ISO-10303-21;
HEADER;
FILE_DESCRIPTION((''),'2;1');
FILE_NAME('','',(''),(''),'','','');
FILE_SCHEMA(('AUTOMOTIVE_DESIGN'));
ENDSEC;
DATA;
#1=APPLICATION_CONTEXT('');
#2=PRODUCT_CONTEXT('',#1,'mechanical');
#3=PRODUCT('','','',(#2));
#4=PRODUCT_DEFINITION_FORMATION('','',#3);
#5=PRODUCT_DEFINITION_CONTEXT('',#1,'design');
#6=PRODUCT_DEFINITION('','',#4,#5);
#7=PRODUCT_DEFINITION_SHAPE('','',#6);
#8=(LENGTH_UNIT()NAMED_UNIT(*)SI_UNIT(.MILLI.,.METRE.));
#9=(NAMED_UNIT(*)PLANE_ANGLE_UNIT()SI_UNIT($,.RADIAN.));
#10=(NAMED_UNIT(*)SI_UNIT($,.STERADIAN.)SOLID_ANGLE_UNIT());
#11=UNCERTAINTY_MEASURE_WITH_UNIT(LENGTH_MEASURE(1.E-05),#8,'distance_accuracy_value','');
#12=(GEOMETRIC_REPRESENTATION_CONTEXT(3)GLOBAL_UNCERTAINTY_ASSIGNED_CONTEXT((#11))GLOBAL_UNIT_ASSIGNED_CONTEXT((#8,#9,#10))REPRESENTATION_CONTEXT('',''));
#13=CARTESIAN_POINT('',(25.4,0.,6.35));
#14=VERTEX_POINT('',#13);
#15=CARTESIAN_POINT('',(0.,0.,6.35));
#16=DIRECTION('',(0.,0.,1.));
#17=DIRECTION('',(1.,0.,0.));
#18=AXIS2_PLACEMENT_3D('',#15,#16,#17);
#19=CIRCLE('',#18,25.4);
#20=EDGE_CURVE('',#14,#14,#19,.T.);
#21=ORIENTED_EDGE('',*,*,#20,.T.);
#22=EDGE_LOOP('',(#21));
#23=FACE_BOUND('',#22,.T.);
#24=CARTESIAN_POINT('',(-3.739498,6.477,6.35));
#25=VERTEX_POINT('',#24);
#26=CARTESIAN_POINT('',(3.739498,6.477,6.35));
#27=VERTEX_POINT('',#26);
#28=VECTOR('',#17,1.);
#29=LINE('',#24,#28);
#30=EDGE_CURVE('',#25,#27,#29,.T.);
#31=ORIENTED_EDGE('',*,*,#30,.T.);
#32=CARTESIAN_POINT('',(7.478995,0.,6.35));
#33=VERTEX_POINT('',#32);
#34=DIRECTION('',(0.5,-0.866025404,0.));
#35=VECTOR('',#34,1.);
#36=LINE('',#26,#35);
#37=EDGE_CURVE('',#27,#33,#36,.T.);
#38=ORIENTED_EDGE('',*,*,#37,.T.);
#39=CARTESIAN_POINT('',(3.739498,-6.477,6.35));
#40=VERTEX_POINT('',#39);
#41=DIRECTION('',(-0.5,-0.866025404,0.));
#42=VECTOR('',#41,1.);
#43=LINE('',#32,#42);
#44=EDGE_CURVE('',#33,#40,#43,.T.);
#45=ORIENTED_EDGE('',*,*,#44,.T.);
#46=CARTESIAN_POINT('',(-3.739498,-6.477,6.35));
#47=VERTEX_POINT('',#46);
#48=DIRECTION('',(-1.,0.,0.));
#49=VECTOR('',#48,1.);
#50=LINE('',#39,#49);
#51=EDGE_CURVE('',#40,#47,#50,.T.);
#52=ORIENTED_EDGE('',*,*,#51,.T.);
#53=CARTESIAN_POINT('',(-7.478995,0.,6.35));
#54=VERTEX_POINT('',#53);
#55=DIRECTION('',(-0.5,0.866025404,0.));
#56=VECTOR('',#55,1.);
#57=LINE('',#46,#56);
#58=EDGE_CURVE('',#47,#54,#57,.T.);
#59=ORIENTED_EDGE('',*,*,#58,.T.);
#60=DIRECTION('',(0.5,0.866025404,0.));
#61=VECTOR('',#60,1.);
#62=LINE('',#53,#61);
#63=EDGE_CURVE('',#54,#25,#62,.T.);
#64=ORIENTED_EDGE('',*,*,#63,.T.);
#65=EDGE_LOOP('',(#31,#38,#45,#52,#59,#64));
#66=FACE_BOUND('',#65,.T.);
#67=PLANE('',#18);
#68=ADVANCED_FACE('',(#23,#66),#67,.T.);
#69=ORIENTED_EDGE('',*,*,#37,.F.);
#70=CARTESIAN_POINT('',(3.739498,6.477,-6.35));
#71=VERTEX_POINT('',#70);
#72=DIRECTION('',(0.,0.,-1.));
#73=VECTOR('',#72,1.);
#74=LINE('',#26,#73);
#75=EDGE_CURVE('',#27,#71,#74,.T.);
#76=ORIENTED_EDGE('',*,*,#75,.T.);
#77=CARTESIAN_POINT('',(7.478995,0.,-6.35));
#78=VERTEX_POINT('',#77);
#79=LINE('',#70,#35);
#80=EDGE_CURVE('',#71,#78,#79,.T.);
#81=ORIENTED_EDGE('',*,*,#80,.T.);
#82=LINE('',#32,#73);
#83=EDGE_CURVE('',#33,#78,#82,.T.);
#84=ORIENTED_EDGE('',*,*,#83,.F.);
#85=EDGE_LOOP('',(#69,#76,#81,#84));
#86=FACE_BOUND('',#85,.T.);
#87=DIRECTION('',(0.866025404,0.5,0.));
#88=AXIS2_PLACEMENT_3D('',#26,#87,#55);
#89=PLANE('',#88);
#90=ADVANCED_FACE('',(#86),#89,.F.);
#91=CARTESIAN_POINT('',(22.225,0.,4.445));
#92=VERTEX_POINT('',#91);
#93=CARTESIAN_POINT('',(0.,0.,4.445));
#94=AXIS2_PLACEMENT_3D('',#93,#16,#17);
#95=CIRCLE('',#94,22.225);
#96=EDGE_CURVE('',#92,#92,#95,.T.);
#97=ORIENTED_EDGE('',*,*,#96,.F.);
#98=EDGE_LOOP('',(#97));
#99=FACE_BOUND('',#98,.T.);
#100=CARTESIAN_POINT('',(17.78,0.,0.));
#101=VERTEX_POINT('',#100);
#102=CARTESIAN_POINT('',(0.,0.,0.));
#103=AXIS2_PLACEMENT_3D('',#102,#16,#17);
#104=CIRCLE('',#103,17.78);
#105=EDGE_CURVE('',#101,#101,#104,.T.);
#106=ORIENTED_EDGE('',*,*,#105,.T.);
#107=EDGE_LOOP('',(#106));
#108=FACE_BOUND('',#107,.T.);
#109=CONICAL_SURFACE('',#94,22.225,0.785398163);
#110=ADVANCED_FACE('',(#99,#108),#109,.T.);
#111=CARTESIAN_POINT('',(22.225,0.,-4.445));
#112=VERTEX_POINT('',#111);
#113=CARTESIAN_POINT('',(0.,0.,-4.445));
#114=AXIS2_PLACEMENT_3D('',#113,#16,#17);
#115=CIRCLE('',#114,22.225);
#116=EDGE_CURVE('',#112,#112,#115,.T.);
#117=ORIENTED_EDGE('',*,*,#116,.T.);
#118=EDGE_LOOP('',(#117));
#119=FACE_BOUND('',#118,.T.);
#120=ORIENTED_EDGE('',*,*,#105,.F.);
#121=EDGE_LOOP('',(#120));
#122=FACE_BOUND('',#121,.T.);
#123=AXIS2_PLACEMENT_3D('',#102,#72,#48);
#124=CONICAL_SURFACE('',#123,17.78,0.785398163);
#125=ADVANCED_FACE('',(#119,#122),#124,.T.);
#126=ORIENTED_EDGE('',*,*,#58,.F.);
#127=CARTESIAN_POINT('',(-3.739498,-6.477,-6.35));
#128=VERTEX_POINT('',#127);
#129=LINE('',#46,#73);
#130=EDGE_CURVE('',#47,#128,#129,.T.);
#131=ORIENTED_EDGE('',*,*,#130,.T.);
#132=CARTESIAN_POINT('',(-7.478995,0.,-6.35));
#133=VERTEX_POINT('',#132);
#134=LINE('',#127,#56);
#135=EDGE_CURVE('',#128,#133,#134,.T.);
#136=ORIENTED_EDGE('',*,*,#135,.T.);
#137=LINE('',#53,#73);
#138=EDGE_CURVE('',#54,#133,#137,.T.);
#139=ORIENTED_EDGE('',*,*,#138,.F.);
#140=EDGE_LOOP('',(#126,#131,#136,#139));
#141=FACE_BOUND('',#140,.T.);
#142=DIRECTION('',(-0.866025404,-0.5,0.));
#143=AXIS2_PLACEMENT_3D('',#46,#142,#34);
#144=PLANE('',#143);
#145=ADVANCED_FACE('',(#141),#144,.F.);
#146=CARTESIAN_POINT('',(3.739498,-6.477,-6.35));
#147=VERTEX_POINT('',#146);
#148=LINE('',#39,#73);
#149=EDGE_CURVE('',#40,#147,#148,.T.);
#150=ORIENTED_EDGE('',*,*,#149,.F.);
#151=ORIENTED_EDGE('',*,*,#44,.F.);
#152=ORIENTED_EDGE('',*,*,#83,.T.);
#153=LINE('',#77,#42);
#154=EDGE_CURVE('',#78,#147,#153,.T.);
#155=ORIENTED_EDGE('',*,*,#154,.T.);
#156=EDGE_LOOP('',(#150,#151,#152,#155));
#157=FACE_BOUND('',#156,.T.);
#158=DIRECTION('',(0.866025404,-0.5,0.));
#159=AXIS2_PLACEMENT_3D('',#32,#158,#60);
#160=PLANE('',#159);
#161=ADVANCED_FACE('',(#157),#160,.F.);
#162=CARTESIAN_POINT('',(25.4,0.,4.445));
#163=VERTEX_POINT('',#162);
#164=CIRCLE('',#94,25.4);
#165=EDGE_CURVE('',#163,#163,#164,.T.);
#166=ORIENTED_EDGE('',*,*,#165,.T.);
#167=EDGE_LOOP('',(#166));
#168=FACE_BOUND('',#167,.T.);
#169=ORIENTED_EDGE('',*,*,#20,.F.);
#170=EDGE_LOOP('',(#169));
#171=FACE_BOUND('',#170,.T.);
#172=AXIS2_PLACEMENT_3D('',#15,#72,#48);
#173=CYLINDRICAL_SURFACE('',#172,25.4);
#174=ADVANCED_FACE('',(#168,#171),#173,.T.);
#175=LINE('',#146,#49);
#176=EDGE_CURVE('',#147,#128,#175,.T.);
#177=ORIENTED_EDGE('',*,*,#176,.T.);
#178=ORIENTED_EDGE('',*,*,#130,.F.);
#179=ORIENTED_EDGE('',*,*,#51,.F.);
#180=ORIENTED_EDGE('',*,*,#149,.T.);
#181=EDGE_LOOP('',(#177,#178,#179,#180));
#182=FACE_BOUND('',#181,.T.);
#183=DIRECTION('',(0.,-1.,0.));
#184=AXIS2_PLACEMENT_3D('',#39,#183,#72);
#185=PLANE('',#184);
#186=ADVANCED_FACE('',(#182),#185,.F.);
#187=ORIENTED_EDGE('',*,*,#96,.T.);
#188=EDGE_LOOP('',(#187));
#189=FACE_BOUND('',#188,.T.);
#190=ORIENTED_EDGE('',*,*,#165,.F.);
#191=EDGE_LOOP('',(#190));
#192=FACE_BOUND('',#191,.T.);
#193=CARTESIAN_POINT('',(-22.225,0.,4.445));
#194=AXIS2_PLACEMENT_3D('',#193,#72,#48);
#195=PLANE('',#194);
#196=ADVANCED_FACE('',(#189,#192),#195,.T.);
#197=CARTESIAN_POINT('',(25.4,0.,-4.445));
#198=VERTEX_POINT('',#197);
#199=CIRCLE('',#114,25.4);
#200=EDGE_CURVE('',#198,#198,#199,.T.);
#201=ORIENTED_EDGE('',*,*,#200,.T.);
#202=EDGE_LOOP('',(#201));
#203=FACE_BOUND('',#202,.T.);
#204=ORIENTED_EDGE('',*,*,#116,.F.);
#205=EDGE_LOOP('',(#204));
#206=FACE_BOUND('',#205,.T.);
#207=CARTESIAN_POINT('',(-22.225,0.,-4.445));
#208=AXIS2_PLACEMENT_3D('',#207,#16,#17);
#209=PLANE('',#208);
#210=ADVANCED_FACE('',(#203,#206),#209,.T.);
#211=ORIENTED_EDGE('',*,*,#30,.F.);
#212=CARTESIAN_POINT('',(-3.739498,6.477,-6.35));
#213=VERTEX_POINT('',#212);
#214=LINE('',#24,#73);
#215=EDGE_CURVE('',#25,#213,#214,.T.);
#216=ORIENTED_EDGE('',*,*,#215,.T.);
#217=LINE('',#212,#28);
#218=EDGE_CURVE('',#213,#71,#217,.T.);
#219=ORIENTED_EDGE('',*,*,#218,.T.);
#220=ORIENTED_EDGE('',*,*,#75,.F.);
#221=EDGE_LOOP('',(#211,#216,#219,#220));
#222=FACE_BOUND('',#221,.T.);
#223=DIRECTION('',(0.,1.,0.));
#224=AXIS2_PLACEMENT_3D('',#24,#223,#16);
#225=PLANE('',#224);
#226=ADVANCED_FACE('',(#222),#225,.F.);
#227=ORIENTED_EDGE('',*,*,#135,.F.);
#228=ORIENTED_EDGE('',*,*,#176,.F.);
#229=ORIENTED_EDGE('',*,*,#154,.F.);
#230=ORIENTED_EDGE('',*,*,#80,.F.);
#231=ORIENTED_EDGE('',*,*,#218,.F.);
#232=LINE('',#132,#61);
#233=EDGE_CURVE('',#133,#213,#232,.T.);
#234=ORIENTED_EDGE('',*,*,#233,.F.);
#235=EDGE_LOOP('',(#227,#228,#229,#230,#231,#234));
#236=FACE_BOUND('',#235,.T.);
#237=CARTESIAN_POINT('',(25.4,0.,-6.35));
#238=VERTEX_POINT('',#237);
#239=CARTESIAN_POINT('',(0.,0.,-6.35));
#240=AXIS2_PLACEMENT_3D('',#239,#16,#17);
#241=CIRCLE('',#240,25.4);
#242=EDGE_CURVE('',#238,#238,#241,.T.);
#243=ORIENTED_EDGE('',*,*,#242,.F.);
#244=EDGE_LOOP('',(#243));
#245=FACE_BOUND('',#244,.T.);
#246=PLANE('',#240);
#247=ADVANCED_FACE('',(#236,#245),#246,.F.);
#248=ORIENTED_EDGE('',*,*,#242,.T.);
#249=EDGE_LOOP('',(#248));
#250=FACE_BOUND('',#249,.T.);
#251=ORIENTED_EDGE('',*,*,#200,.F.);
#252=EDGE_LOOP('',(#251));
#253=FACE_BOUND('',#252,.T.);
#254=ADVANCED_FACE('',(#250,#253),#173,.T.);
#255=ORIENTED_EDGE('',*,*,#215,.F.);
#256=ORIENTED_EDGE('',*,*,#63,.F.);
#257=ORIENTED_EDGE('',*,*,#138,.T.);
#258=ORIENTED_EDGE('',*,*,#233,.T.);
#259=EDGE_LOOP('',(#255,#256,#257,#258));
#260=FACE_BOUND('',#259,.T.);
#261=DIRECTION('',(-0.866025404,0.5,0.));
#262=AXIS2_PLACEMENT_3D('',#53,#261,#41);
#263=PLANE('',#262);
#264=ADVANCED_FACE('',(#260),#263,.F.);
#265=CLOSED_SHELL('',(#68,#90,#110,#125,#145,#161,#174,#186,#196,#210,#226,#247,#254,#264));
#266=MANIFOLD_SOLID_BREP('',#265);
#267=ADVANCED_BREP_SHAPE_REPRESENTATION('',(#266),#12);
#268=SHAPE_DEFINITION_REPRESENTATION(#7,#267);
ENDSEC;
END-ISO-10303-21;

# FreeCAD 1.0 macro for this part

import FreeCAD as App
import Part
import Sketcher
Q = App.Units.Quantity


def add_polygon(sketch, points):
    """Adds a closed chain of lines whose ends are joined by coincident constraints."""
    first, n = sketch.GeometryCount, len(points)
    for a, b in zip(points, points[1:] + points[:1]):
        sketch.addGeometry(Part.LineSegment(App.Vector(*a, 0), App.Vector(*b, 0)), False)
    for i in range(n):
        sketch.addConstraint(Sketcher.Constraint("Coincident", first + i, 2, first + (i + 1) % n, 1))

doc = App.newDocument("Part")
body = doc.addObject("PartDesign::Body", "Body")

# Sketch on XY plane
sketch1 = body.newObject("Sketcher::SketchObject", "Sketch")
sketch1.AttachmentSupport = (doc.getObject("XY_Plane"), [""])
sketch1.MapMode = "FlatFace"
sketch1.addGeometry(Part.Circle(App.Vector(0, 0, 0), App.Vector(0, 0, 1), 25), False)
sketch1.addConstraint([
    Sketcher.Constraint("Coincident", 0, 3, -1, 1),
    Sketcher.Constraint("Diameter", 0, Q("2 in")),
])
pad1 = body.newObject("PartDesign::Pad", "Pad")
pad1.Profile = sketch1
pad1.Length = Q("0.5 in")
pad1.Midplane = True

# Sketch on XZ plane
sketch2 = body.newObject("Sketcher::SketchObject", "Sketch001")
sketch2.AttachmentSupport = (doc.getObject("XZ_Plane"), [""])
sketch2.MapMode = "FlatFace"
add_polygon(sketch2, [(-25.4, -4.4), (-25.4, 4.4), (-22.2, 4.4), (-17.8, 0), (-22.2, -4.4)])  # lines 0-4
sketch2.addConstraint([
    Sketcher.Constraint("Vertical", 0),
    Sketcher.Constraint("Horizontal", 1),
    Sketcher.Constraint("Horizontal", 4),
    Sketcher.Constraint("Symmetric", 1, 2, 3, 2, -1),
    Sketcher.Constraint("PointOnObject", 2, 2, -1),
    Sketcher.Constraint("Perpendicular", 2, 3),
    Sketcher.Constraint("DistanceX", 0, 2, -1, 1, Q("1 in")),
    Sketcher.Constraint("DistanceY", 0, 1, 0, 2, Q("0.35 in")),
    Sketcher.Constraint("DistanceX", 2, 2, -1, 1, Q("0.7 in")),
])
groove = body.newObject("PartDesign::Groove", "Groove")
groove.Profile = sketch2
groove.ReferenceAxis = (sketch2, ["V_Axis"])
groove.Angle = 360

# Sketch on XY plane
sketch3 = body.newObject("Sketcher::SketchObject", "Sketch002")
sketch3.AttachmentSupport = (doc.getObject("XY_Plane"), [""])
sketch3.MapMode = "FlatFace"
sketch3.AttachmentOffset = App.Placement(App.Vector(0, 0, -0.25 * 25.4), App.Rotation())
add_polygon(sketch3, [(-7, 0), (-4, 6), (4, 6), (7, 0), (4, -6), (-4, -6)])  # lines 0-5
sketch3.addConstraint([
    Sketcher.Constraint("Horizontal", 1),
    Sketcher.Constraint("Horizontal", 4),
    Sketcher.Constraint("Symmetric", 0, 2, 3, 2, -1, 1),
    Sketcher.Constraint("Symmetric", 2, 2, 5, 2, -1, 1),
    Sketcher.Constraint("PointOnObject", 2, 2, -1),
    Sketcher.Constraint("Parallel", 2, 5),
    Sketcher.Constraint("Vertical", 1, 2, 3, 2),
    Sketcher.Constraint("Angle", 0, Q("60 deg")),
    Sketcher.Constraint("DistanceY", 3, 2, 1, 2, Q("0.51 in")),
    Sketcher.Constraint("DistanceX", 1, 1, 1, 2, 7.478995),
])
pocket1 = body.newObject("PartDesign::Pocket", "Pocket")
pocket1.Profile = sketch3
pocket1.Type = "ThroughAll"
pocket1.Reversed = True

doc.recompute()
